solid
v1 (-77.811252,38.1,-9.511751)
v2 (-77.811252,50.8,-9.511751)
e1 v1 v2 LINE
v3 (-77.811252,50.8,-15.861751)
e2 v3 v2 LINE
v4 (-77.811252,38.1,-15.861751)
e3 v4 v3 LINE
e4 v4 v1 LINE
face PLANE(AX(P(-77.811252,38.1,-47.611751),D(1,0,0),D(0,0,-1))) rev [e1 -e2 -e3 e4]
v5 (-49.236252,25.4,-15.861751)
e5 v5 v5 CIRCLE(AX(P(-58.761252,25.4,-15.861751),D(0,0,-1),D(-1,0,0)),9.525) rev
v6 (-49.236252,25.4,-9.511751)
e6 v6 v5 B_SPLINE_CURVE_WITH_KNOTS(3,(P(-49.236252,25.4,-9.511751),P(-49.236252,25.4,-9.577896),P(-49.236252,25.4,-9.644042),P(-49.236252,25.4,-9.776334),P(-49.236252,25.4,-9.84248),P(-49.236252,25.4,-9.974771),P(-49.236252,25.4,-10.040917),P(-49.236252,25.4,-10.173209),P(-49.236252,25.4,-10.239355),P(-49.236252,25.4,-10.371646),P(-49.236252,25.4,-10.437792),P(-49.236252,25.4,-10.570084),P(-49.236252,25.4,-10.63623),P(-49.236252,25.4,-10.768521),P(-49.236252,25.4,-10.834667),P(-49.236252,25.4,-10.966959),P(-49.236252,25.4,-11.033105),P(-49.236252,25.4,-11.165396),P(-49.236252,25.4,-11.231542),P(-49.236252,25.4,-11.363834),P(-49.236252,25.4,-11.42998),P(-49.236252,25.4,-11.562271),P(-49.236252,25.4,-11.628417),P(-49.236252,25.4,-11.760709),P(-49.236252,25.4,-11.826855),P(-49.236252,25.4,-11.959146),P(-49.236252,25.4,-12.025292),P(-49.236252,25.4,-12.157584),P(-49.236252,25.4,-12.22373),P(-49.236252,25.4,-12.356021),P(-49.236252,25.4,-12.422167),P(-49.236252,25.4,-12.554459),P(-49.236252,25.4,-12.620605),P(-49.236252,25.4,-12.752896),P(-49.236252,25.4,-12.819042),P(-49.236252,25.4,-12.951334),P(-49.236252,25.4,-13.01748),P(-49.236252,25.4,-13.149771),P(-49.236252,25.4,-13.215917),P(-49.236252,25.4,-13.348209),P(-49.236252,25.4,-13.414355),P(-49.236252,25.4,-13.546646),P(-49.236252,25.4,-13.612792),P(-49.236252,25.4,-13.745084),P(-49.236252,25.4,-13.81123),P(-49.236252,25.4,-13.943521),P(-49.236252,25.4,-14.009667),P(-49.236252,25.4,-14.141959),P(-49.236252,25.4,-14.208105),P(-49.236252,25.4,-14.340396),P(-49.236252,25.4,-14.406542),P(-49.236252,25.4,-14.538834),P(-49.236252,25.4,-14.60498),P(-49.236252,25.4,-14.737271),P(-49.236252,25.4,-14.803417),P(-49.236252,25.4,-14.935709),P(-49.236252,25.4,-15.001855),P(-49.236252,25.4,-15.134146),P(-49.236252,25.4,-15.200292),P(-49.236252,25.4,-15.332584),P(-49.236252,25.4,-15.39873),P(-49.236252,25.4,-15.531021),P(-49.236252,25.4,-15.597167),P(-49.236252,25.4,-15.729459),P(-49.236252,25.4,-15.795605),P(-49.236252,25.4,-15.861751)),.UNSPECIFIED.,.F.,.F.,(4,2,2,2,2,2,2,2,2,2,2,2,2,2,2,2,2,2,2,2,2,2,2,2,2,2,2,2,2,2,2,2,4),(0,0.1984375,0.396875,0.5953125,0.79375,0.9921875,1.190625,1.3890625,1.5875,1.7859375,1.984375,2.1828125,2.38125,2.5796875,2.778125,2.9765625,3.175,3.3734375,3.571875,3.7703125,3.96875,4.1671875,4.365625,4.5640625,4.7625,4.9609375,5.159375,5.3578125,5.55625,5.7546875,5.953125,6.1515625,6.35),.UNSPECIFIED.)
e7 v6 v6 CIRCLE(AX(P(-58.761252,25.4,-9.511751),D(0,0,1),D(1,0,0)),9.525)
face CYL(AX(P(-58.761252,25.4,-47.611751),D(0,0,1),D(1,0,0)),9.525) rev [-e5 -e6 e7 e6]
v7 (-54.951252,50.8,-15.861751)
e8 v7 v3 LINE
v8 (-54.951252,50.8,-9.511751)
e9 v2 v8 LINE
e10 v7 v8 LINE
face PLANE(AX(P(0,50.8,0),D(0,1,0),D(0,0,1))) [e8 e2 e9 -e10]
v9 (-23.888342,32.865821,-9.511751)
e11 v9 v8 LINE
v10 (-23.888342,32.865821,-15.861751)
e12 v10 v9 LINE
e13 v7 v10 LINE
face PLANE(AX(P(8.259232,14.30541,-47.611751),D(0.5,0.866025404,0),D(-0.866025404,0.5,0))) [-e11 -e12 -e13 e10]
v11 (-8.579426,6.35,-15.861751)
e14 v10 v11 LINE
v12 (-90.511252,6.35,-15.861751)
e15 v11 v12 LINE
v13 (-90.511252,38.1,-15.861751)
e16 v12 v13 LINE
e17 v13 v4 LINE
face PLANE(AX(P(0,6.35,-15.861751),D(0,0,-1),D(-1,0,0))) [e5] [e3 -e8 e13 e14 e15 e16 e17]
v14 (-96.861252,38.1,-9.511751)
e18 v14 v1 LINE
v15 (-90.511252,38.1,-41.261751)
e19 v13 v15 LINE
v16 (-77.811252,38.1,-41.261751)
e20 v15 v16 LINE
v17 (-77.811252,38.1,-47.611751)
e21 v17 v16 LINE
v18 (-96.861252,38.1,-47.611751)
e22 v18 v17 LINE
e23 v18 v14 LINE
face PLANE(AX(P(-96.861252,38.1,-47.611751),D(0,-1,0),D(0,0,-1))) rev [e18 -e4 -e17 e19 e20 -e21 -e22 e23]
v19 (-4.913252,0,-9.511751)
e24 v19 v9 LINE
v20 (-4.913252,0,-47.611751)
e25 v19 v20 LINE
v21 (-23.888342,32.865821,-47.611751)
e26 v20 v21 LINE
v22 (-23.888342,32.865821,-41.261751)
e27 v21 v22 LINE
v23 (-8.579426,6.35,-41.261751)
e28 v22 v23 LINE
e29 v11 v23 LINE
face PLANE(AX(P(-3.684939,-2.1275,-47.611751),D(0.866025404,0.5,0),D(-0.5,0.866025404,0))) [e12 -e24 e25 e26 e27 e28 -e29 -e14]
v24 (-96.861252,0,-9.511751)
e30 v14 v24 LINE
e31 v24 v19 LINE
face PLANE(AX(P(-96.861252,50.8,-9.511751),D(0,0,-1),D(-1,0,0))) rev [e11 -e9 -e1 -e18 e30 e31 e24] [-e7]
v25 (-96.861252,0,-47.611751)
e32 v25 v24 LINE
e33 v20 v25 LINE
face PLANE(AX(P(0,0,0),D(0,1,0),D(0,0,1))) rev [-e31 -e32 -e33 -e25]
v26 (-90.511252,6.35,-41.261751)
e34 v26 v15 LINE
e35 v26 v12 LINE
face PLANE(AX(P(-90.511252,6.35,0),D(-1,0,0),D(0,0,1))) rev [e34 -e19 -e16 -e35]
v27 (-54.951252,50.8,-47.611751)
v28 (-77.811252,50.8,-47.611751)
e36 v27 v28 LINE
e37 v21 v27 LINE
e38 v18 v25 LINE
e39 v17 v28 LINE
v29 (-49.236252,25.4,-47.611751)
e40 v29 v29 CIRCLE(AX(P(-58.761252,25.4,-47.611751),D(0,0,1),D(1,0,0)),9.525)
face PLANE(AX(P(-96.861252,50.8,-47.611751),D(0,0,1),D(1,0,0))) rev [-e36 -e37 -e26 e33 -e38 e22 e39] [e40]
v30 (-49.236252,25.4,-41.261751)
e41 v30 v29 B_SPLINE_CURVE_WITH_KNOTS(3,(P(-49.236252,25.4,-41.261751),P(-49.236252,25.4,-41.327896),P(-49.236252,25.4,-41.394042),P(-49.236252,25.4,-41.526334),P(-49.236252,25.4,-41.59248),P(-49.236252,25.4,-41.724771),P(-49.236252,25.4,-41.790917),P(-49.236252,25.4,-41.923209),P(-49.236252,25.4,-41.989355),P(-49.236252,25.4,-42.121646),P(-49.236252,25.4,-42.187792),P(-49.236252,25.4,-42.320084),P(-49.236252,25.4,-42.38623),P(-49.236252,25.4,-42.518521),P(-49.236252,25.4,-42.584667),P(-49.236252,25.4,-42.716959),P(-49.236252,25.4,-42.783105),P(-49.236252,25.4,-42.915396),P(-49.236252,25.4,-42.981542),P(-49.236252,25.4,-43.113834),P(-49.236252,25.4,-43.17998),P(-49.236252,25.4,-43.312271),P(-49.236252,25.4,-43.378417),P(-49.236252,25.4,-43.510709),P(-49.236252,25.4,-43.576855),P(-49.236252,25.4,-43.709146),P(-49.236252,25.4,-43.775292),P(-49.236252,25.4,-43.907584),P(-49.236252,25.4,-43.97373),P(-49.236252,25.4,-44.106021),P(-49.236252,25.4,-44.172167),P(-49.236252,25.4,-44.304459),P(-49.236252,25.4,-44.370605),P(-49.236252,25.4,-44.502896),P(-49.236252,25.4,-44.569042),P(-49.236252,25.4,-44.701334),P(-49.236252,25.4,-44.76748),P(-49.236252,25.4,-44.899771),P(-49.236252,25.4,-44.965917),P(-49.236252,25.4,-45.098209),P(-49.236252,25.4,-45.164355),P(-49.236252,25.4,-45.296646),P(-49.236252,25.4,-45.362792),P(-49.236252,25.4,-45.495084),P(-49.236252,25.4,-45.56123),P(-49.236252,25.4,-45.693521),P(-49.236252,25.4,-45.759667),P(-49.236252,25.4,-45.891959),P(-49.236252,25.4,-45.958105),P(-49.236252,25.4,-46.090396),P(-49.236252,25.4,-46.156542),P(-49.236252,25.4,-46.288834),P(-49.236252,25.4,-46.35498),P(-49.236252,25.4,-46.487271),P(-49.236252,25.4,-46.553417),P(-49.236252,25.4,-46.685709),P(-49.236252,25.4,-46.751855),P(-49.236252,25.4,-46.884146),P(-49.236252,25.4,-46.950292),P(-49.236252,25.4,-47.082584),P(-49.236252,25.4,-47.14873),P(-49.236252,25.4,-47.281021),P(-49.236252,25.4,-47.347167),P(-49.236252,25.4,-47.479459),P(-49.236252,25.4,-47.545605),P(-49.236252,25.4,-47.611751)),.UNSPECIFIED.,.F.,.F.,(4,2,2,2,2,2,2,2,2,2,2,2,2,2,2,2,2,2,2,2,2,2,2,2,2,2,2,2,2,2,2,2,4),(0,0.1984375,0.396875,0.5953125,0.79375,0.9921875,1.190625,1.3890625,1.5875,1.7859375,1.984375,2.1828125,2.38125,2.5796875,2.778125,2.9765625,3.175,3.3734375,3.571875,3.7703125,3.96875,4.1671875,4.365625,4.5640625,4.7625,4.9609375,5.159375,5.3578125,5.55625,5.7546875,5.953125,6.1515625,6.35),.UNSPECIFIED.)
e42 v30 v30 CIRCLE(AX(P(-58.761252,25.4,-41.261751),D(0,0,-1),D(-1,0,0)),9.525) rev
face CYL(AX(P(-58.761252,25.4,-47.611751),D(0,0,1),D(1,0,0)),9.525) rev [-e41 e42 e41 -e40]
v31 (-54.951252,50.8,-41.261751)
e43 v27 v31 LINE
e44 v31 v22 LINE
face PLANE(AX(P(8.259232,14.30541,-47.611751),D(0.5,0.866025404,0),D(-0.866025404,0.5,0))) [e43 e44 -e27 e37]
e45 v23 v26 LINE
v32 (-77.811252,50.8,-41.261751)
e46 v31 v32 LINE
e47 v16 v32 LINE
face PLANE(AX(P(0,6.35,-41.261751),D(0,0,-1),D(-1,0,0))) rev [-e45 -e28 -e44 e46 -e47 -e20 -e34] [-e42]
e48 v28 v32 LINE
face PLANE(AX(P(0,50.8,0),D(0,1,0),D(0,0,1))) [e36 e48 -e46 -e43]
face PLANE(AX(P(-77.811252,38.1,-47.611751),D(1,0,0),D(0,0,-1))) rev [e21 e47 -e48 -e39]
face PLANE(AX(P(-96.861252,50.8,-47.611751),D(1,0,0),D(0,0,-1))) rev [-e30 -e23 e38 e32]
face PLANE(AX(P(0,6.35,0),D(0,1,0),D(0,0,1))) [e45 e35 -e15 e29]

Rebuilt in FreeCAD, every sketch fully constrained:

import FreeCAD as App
import Part
import Sketcher

V = App.Vector
Q = App.Units.Quantity

doc = App.newDocument("Part")
params = doc.addObject("Spreadsheet::Sheet", "Params")
for row, (alias, value) in enumerate([
    ("sketch1_height", "1.5 in"),
    ("sketch1_width", "3.62 in"),
    ("pad1_length", "2 in"),
    ("sketch2_diameter", "0.75 in"),
    ("sketch3_height", "0.5 in"),
    ("sketch3_width", "0.75 in"),
    ("sketch4_height", "1 in"),
    ("sketch4_width", "3.37 in"),
    ("pocket3_length", "1.75 in"),
    ("sketch5_height", "2 in"),
    ("sketch5_width", "1.97 in"),
], start=1):
    params.set(f"A{row}", alias)
    params.set(f"B{row}", "=" + value)
    params.setAlias(f"B{row}", alias)

body = doc.addObject("PartDesign::Body", "Body")

# Sketch on XZ plane
sketch1 = body.newObject("Sketcher::SketchObject", "Sketch")
sketch1.AttachmentSupport = (doc.getObject("XZ_Plane"), [""])
sketch1.MapMode = "FlatFace"
sketch1.addGeometry([
    Part.LineSegment(V(-97, -48, 0), V(-97, -10, 0)),
    Part.LineSegment(V(-97, -10, 0), V(-5, -10, 0)),
    Part.LineSegment(V(-5, -10, 0), V(-5, -48, 0)),
    Part.LineSegment(V(-5, -48, 0), V(-97, -48, 0)),
], False)
sketch1.addConstraint([
    Sketcher.Constraint("Coincident", 0, 2, 1, 1),
    Sketcher.Constraint("Coincident", 1, 2, 2, 1),
    Sketcher.Constraint("Coincident", 2, 2, 3, 1),
    Sketcher.Constraint("Coincident", 3, 2, 0, 1),
    Sketcher.Constraint("Vertical", 0),
    Sketcher.Constraint("Horizontal", 1),
    Sketcher.Constraint("Vertical", 2),
    Sketcher.Constraint("Horizontal", 3),
    Sketcher.Constraint("DistanceY", 0, 1, 0, 2, Q("1.5 in")),
    Sketcher.Constraint("DistanceX", 1, 1, 1, 2, Q("3.62 in")),
    Sketcher.Constraint("DistanceX", 0, 2, -1, 1, 96.861252),
    Sketcher.Constraint("DistanceY", 0, 2, -1, 1, 9.511751),
])
sketch1.setExpression("Constraints[8]", "Params.sketch1_height")
sketch1.setExpression("Constraints[9]", "Params.sketch1_width")
pad1 = body.newObject("PartDesign::Pad", "Pad")
pad1.Profile = sketch1
pad1.setExpression("Length", "Params.pad1_length")
pad1.Reversed = True

# Sketch on XY plane
sketch2 = body.newObject("Sketcher::SketchObject", "Sketch001")
sketch2.AttachmentSupport = (doc.getObject("XY_Plane"), [""])
sketch2.MapMode = "FlatFace"
sketch2.AttachmentOffset = App.Placement(V(0, 0, -9.511751), App.Rotation())
sketch2.addGeometry(Part.Circle(V(-59, 25, 0), V(0, 0, 1), 10), False)
sketch2.addConstraint([
    Sketcher.Constraint("Diameter", 0, Q("0.75 in")),
    Sketcher.Constraint("DistanceY", -1, 1, 0, 3, Q("1 in")),
    Sketcher.Constraint("DistanceX", 0, 3, -1, 1, 58.761252),
])
sketch2.setExpression("Constraints[0]", "Params.sketch2_diameter")
pocket1 = body.newObject("PartDesign::Pocket", "Pocket")
pocket1.Profile = sketch2
pocket1.Type = "ThroughAll"

# Sketch on XY plane
sketch3 = body.newObject("Sketcher::SketchObject", "Sketch002")
sketch3.AttachmentSupport = (doc.getObject("XY_Plane"), [""])
sketch3.MapMode = "FlatFace"
sketch3.AttachmentOffset = App.Placement(V(0, 0, -9.511751), App.Rotation())
sketch3.addGeometry([
    Part.LineSegment(V(-97, 51, 0), V(-97, 38, 0)),
    Part.LineSegment(V(-97, 38, 0), V(-78, 38, 0)),
    Part.LineSegment(V(-78, 38, 0), V(-78, 51, 0)),
    Part.LineSegment(V(-78, 51, 0), V(-97, 51, 0)),
], False)
sketch3.addConstraint([
    Sketcher.Constraint("Coincident", 0, 2, 1, 1),
    Sketcher.Constraint("Coincident", 1, 2, 2, 1),
    Sketcher.Constraint("Coincident", 2, 2, 3, 1),
    Sketcher.Constraint("Coincident", 3, 2, 0, 1),
    Sketcher.Constraint("Vertical", 0),
    Sketcher.Constraint("Horizontal", 1),
    Sketcher.Constraint("Vertical", 2),
    Sketcher.Constraint("Horizontal", 3),
    Sketcher.Constraint("DistanceY", 0, 2, 0, 1, Q("0.5 in")),
    Sketcher.Constraint("DistanceY", -1, 1, 2, 2, Q("2 in")),
    Sketcher.Constraint("DistanceX", 1, 1, 1, 2, Q("0.75 in")),
    Sketcher.Constraint("DistanceX", 0, 2, -1, 1, 96.861252),
])
sketch3.setExpression("Constraints[8]", "Params.sketch3_height")
sketch3.setExpression("Constraints[10]", "Params.sketch3_width")
pocket2 = body.newObject("PartDesign::Pocket", "Pocket001")
pocket2.Profile = sketch3
pocket2.Type = "ThroughAll"

# Sketch on XZ plane
sketch4 = body.newObject("Sketcher::SketchObject", "Sketch003")
sketch4.AttachmentSupport = (doc.getObject("XZ_Plane"), [""])
sketch4.MapMode = "FlatFace"
sketch4.AttachmentOffset = App.Placement(V(0, 0, -2 * 25.4), App.Rotation())
sketch4.addGeometry([
    Part.LineSegment(V(-91, -41, 0), V(-91, -16, 0)),
    Part.LineSegment(V(-91, -16, 0), V(-5, -16, 0)),
    Part.LineSegment(V(-5, -16, 0), V(-5, -41, 0)),
    Part.LineSegment(V(-5, -41, 0), V(-91, -41, 0)),
], False)
sketch4.addConstraint([
    Sketcher.Constraint("Coincident", 0, 2, 1, 1),
    Sketcher.Constraint("Coincident", 1, 2, 2, 1),
    Sketcher.Constraint("Coincident", 2, 2, 3, 1),
    Sketcher.Constraint("Coincident", 3, 2, 0, 1),
    Sketcher.Constraint("Vertical", 0),
    Sketcher.Constraint("Horizontal", 1),
    Sketcher.Constraint("Vertical", 2),
    Sketcher.Constraint("Horizontal", 3),
    Sketcher.Constraint("DistanceY", 0, 1, 0, 2, Q("1 in")),
    Sketcher.Constraint("DistanceX", 1, 1, 1, 2, Q("3.37 in")),
    Sketcher.Constraint("DistanceX", 0, 2, -1, 1, 90.511252),
    Sketcher.Constraint("DistanceY", 0, 2, -1, 1, 15.861751),
])
sketch4.setExpression("Constraints[8]", "Params.sketch4_height")
sketch4.setExpression("Constraints[9]", "Params.sketch4_width")
pocket3 = body.newObject("PartDesign::Pocket", "Pocket002")
pocket3.Profile = sketch4
pocket3.setExpression("Length", "Params.pocket3_length")
pocket3.Reversed = True

# Sketch on XY plane
sketch5 = body.newObject("Sketcher::SketchObject", "Sketch004")
sketch5.AttachmentSupport = (doc.getObject("XY_Plane"), [""])
sketch5.MapMode = "FlatFace"
sketch5.AttachmentOffset = App.Placement(V(0, 0, -9.511751), App.Rotation())
sketch5.addGeometry([
    Part.LineSegment(V(-24, 33, 0), V(-5, 0, 0)),
    Part.LineSegment(V(-5, 0, 0), V(-5, 51, 0)),
    Part.LineSegment(V(-5, 51, 0), V(-55, 51, 0)),
    Part.LineSegment(V(-55, 51, 0), V(-24, 33, 0)),
], False)
sketch5.addConstraint([
    Sketcher.Constraint("Coincident", 0, 2, 1, 1),
    Sketcher.Constraint("Coincident", 1, 2, 2, 1),
    Sketcher.Constraint("Coincident", 2, 2, 3, 1),
    Sketcher.Constraint("Coincident", 3, 2, 0, 1),
    Sketcher.Constraint("Vertical", 1),
    Sketcher.Constraint("Horizontal", 2),
    Sketcher.Constraint("PointOnObject", 0, 2, -1),
    Sketcher.Constraint("DistanceY", 1, 1, 1, 2, Q("2 in")),
    Sketcher.Constraint("Angle", 0, Q("-60 deg")),
    Sketcher.Constraint("Angle", 3, Q("-30 deg")),
    Sketcher.Constraint("DistanceX", 2, 2, 2, 1, Q("1.97 in")),
    Sketcher.Constraint("DistanceX", 0, 2, -1, 1, 4.913252),
])
sketch5.setExpression("Constraints[7]", "Params.sketch5_height")
sketch5.setExpression("Constraints[10]", "Params.sketch5_width")
pocket4 = body.newObject("PartDesign::Pocket", "Pocket003")
pocket4.Profile = sketch5
pocket4.Type = "ThroughAll"

doc.recompute()
